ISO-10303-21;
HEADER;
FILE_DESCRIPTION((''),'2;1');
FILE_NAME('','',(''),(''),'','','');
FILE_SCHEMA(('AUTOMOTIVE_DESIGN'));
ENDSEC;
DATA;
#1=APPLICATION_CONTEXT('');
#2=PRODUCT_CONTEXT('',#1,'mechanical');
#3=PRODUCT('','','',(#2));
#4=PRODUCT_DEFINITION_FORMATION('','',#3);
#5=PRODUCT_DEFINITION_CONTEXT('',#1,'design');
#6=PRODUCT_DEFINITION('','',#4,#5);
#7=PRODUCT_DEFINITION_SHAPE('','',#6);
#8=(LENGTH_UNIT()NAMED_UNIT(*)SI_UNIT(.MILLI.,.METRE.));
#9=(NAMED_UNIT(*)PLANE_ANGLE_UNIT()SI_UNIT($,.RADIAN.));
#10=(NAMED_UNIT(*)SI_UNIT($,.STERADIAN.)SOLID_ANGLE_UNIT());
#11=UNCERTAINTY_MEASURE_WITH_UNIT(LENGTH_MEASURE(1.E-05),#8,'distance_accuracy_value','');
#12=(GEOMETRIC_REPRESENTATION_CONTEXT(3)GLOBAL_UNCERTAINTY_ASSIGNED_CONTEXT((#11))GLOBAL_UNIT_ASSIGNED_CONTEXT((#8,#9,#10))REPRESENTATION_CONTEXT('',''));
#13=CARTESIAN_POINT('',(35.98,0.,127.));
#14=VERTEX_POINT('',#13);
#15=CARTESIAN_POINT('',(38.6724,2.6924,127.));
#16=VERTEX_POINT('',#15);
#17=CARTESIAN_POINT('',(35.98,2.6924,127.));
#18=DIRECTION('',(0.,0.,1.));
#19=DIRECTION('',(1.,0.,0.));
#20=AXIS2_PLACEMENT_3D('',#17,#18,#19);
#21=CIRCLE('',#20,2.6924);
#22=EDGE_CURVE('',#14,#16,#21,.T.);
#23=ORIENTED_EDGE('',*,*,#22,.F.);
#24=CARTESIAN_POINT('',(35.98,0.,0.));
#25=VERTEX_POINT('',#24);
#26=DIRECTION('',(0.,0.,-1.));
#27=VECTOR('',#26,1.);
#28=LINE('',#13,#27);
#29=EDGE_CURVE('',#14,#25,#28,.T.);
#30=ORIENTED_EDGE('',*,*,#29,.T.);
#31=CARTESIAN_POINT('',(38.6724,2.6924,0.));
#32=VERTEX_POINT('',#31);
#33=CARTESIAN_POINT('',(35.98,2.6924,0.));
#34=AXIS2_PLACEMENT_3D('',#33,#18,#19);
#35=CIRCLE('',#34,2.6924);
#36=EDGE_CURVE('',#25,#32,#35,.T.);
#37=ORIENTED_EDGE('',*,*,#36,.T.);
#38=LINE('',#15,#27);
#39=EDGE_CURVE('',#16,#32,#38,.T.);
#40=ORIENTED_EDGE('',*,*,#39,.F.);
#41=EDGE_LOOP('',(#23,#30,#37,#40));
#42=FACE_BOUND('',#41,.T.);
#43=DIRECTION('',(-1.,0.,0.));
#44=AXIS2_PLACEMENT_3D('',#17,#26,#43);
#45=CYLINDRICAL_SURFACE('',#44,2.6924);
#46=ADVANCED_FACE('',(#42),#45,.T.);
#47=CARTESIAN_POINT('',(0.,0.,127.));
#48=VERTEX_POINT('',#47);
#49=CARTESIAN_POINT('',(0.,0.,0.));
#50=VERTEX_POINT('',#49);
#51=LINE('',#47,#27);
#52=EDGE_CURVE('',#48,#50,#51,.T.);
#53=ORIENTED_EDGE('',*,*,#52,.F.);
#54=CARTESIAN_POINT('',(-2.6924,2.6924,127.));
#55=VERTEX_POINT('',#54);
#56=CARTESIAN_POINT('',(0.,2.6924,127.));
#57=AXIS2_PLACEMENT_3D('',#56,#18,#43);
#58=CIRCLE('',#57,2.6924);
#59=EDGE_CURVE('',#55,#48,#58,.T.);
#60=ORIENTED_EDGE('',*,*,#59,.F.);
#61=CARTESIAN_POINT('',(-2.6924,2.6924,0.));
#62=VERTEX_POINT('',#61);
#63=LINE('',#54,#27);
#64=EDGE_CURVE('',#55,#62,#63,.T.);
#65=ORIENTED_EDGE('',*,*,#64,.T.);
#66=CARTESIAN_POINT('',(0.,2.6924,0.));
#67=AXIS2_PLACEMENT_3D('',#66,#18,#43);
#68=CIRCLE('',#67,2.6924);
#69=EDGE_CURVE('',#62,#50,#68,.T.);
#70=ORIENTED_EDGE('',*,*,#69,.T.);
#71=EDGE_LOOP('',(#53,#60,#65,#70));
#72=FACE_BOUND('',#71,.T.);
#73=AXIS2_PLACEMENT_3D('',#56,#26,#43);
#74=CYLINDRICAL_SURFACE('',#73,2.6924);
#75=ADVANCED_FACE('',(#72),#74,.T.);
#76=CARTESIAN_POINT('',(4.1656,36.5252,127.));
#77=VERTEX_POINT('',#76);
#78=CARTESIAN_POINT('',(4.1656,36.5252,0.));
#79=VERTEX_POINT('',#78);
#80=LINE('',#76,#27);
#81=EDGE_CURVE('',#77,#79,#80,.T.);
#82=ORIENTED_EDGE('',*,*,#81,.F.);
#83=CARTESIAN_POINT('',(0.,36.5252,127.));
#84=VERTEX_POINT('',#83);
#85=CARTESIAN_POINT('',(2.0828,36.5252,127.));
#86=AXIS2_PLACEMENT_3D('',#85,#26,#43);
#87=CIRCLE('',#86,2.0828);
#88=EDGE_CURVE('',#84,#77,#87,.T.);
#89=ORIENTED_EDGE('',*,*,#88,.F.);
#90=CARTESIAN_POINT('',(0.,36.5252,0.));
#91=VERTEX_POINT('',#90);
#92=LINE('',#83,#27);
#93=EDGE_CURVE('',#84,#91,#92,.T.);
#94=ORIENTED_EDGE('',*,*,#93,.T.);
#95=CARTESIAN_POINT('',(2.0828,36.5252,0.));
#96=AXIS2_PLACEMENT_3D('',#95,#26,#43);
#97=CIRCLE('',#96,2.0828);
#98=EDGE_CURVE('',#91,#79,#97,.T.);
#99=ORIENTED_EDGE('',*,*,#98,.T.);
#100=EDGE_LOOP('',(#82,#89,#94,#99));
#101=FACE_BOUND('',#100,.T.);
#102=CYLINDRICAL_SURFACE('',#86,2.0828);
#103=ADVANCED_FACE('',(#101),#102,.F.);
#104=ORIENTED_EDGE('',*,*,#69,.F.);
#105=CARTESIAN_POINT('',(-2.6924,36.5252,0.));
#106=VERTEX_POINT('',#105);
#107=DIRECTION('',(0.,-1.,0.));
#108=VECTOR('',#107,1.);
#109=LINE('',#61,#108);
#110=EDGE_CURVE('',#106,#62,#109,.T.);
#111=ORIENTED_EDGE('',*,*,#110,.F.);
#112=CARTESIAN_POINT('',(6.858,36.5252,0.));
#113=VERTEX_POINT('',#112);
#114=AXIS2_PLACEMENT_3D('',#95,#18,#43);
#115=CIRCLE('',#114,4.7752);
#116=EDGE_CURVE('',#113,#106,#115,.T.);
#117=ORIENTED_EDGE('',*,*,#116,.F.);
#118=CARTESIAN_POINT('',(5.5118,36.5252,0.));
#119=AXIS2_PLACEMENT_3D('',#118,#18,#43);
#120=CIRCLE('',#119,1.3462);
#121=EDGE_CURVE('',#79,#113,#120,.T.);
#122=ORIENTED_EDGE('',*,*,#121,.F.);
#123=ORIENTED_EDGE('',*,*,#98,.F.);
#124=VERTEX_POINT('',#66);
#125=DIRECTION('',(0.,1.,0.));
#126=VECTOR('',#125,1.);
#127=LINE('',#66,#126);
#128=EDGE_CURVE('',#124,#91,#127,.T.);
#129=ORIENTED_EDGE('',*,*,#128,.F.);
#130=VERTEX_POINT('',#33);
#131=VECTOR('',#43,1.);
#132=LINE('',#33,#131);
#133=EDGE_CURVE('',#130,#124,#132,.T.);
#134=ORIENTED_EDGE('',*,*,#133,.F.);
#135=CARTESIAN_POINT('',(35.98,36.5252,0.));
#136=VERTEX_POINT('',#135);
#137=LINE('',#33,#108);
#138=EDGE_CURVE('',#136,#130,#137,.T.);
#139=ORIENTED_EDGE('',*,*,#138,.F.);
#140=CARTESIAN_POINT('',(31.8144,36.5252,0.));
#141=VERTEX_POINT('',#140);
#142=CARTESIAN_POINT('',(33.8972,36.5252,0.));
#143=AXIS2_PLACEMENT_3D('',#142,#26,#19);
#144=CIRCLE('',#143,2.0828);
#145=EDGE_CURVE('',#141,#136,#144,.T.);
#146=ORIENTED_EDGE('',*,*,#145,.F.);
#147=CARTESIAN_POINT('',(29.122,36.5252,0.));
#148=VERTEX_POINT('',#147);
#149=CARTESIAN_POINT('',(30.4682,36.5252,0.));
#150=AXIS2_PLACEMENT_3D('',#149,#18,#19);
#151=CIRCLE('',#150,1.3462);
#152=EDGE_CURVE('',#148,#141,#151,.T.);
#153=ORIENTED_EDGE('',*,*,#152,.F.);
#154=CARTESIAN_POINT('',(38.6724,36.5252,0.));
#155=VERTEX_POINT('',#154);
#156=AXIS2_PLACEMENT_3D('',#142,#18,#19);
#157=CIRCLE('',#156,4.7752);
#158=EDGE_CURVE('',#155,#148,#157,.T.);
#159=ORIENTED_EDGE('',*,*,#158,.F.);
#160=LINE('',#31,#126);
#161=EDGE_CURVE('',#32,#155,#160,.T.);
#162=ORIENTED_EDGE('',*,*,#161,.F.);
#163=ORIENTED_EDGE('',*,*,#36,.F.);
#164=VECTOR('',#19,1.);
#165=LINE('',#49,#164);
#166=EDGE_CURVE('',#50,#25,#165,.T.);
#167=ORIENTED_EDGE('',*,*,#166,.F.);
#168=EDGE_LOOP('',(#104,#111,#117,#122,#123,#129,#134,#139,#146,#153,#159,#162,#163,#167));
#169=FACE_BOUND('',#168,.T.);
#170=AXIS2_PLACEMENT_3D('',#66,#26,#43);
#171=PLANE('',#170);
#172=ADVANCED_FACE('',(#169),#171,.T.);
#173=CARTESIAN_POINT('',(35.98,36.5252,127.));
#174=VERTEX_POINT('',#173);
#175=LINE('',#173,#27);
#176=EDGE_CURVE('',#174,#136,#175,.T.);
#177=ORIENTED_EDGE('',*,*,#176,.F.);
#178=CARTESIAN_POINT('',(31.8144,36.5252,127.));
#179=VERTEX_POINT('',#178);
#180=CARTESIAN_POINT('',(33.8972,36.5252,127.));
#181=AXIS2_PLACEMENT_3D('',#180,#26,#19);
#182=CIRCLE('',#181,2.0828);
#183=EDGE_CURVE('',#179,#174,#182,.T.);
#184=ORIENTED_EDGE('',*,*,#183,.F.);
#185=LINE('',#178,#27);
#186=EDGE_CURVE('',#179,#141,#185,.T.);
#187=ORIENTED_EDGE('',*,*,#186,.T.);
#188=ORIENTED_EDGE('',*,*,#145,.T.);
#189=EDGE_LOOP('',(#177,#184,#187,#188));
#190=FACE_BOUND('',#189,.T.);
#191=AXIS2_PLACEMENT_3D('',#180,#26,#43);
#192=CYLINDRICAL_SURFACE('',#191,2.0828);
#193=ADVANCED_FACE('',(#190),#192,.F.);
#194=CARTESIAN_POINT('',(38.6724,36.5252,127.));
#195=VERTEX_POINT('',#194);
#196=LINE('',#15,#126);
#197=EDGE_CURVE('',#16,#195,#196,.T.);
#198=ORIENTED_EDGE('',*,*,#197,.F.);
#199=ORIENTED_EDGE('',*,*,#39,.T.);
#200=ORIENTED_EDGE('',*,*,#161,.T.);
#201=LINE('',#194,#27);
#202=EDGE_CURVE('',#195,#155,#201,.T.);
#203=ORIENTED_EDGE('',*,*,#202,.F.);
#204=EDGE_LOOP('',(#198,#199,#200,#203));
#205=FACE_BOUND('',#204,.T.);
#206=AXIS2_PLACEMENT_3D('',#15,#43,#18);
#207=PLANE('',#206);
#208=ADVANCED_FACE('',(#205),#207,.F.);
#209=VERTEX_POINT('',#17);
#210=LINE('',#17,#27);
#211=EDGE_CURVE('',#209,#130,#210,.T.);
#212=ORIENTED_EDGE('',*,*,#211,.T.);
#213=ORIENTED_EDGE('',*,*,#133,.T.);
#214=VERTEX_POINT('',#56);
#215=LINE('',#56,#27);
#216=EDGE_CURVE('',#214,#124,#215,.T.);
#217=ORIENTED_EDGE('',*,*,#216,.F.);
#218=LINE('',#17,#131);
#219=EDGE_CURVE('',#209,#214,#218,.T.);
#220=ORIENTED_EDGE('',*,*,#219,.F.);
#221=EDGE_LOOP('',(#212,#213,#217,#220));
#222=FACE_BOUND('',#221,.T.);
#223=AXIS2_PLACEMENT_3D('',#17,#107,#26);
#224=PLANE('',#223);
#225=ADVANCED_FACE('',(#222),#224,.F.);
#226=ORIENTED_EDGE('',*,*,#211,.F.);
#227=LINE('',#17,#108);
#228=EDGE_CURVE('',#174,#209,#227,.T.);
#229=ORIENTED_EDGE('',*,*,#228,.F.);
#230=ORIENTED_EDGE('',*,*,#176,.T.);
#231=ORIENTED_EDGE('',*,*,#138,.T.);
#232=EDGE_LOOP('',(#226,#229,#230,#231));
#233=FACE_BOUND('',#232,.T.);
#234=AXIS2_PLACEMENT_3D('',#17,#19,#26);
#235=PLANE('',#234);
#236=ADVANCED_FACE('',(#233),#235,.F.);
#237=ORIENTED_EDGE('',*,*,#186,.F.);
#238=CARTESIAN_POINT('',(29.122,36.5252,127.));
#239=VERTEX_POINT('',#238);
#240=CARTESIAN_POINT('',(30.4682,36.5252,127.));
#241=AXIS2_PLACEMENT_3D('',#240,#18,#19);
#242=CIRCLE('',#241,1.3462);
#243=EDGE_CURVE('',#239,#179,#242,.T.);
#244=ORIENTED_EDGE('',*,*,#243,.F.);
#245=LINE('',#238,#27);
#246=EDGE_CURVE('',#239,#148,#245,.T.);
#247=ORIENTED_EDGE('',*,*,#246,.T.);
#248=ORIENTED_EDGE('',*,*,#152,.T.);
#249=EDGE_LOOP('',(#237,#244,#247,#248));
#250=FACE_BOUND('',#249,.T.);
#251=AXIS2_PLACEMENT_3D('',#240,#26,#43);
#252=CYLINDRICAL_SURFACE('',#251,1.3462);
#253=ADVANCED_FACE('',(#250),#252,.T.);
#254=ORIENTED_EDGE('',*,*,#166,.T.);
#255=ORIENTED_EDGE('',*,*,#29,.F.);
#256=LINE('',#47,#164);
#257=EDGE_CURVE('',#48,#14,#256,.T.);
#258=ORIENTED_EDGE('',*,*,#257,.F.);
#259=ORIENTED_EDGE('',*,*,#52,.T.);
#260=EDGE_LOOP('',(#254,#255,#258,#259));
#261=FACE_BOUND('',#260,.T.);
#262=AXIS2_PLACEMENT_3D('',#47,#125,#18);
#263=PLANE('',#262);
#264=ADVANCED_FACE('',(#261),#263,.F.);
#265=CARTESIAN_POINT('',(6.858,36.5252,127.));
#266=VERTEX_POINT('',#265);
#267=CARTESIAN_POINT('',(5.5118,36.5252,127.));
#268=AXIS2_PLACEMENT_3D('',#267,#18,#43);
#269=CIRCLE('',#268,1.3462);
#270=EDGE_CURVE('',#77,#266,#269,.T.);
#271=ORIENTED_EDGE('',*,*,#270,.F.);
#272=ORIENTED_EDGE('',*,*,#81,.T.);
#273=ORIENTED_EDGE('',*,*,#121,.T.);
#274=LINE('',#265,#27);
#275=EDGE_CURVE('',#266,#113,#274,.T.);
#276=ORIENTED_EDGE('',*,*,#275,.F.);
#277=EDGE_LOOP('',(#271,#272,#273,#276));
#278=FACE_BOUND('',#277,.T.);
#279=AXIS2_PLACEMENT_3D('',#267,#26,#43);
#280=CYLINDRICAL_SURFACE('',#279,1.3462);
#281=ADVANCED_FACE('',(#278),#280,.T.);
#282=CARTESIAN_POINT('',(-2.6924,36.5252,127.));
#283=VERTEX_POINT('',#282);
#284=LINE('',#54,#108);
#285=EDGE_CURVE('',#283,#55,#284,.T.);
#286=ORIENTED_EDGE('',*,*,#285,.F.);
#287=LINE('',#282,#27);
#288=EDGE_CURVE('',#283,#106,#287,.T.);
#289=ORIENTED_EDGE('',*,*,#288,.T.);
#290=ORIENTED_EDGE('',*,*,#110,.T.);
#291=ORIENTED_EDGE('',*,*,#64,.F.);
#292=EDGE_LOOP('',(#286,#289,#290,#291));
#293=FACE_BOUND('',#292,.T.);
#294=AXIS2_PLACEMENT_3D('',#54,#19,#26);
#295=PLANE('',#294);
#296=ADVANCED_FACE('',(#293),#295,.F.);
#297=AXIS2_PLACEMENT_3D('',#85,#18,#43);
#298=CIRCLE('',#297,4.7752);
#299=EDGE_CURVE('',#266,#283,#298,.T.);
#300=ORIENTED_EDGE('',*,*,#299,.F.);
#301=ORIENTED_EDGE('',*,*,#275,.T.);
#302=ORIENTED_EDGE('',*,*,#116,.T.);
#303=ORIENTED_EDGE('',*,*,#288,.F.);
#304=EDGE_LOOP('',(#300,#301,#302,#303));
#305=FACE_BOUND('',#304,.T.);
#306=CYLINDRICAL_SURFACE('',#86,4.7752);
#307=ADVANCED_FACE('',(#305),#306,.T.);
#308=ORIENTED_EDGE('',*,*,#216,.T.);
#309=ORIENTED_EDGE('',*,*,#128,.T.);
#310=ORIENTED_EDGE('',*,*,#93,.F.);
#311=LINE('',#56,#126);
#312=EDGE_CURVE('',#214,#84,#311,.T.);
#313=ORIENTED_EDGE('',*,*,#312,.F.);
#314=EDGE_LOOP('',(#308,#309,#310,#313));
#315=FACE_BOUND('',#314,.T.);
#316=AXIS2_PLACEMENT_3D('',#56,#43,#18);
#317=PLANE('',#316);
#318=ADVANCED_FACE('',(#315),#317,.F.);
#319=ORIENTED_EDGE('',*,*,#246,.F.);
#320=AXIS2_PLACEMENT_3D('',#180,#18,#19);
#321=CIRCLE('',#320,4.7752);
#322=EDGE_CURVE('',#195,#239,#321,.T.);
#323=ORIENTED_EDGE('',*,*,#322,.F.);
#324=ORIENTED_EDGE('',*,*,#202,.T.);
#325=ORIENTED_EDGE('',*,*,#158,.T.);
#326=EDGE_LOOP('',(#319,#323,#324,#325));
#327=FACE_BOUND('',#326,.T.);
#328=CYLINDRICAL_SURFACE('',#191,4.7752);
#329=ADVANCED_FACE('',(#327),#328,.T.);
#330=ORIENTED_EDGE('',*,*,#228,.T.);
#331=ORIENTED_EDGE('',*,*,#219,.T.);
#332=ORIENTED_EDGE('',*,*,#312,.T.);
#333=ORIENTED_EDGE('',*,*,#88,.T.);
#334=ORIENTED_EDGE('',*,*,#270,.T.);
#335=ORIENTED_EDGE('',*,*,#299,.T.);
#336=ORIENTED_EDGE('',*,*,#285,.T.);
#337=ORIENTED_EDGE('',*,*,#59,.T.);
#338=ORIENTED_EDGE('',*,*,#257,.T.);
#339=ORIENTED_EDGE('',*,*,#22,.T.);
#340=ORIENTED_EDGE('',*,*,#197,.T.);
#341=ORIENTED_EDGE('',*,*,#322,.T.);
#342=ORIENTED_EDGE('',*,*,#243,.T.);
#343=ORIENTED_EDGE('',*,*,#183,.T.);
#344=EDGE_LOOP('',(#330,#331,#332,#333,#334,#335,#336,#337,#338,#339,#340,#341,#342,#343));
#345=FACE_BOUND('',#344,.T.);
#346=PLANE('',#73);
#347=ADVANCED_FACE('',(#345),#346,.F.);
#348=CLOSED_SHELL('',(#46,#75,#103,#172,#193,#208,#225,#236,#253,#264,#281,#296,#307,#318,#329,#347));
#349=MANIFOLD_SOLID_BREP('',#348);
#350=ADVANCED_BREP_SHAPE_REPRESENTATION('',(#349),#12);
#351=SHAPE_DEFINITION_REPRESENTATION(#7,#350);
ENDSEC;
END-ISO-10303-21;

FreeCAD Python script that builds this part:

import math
import FreeCAD as App
import Part
import Sketcher
from FreeCAD import Vector
Q = App.Units.Quantity

doc = App.newDocument("Part")
body = doc.addObject("PartDesign::Body", "Body")

# Sketch on XY plane
sketch1 = doc.addObject("Sketcher::SketchObject", "Sketch")
body.addObject(sketch1)
sketch1.AttachmentSupport = (doc.XY_Plane, [""])
sketch1.MapMode = "FlatFace"
sketch1.addGeometry(Part.LineSegment(Vector(0, 0, 0), Vector(36, 0, 0)), False)
sketch1.addGeometry(Part.ArcOfCircle(Part.Circle(Vector(36, 2.7, 0), Vector(0, 0, 1), 2.7), math.radians(-90), math.radians(0)), False)
sketch1.addGeometry(Part.LineSegment(Vector(38.7, 2.7, 0), Vector(38.7, 36.5, 0)), False)
sketch1.addGeometry(Part.ArcOfCircle(Part.Circle(Vector(33.9, 36.5, 0), Vector(0, 0, 1), 4.8), math.radians(0), math.radians(180)), False)
sketch1.addGeometry(Part.ArcOfCircle(Part.Circle(Vector(30.5, 36.5, 0), Vector(0, 0, 1), 1.3), math.radians(180), math.radians(360)), False)
sketch1.addGeometry(Part.ArcOfCircle(Part.Circle(Vector(33.9, 36.5, 0), Vector(0, 0, 1), 2.1), math.radians(0), math.radians(180)), False)
sketch1.addGeometry(Part.LineSegment(Vector(36, 36.5, 0), Vector(36, 2.7, 0)), False)
sketch1.addGeometry(Part.LineSegment(Vector(36, 2.7, 0), Vector(0, 2.7, 0)), False)
sketch1.addGeometry(Part.LineSegment(Vector(0, 2.7, 0), Vector(0, 36.5, 0)), False)
sketch1.addGeometry(Part.ArcOfCircle(Part.Circle(Vector(2.1, 36.5, 0), Vector(0, 0, 1), 2.1), math.radians(0), math.radians(180)), False)
sketch1.addGeometry(Part.ArcOfCircle(Part.Circle(Vector(5.5, 36.5, 0), Vector(0, 0, 1), 1.3), math.radians(180), math.radians(360)), False)
sketch1.addGeometry(Part.ArcOfCircle(Part.Circle(Vector(2.1, 36.5, 0), Vector(0, 0, 1), 4.8), math.radians(0), math.radians(180)), False)
sketch1.addGeometry(Part.LineSegment(Vector(-2.7, 36.5, 0), Vector(-2.7, 2.7, 0)), False)
sketch1.addGeometry(Part.ArcOfCircle(Part.Circle(Vector(0, 2.7, 0), Vector(0, 0, 1), 2.7), math.radians(180), math.radians(270)), False)
sketch1.addConstraint(Sketcher.Constraint("Tangent", 0, 2, 1, 1))
sketch1.addConstraint(Sketcher.Constraint("Tangent", 1, 2, 2, 1))
sketch1.addConstraint(Sketcher.Constraint("Tangent", 2, 2, 3, 1))
sketch1.addConstraint(Sketcher.Constraint("Tangent", 3, 2, 4, 1))
sketch1.addConstraint(Sketcher.Constraint("Tangent", 4, 2, 5, 2))
sketch1.addConstraint(Sketcher.Constraint("Tangent", 5, 1, 6, 1))
sketch1.addConstraint(Sketcher.Constraint("Coincident", 6, 2, 7, 1))
sketch1.addConstraint(Sketcher.Constraint("Coincident", 7, 2, 8, 1))
sketch1.addConstraint(Sketcher.Constraint("Tangent", 8, 2, 9, 2))
sketch1.addConstraint(Sketcher.Constraint("Tangent", 9, 1, 10, 1))
sketch1.addConstraint(Sketcher.Constraint("Tangent", 10, 2, 11, 1))
sketch1.addConstraint(Sketcher.Constraint("Tangent", 11, 2, 12, 1))
sketch1.addConstraint(Sketcher.Constraint("Tangent", 12, 2, 13, 1))
sketch1.addConstraint(Sketcher.Constraint("Tangent", 13, 2, 0, 1))
sketch1.addConstraint(Sketcher.Constraint("Horizontal", 0))
sketch1.addConstraint(Sketcher.Constraint("Vertical", 2))
sketch1.addConstraint(Sketcher.Constraint("Vertical", 6))
sketch1.addConstraint(Sketcher.Constraint("Horizontal", 7))
sketch1.addConstraint(Sketcher.Constraint("Vertical", 8))
sketch1.addConstraint(Sketcher.Constraint("Vertical", 12))
sketch1.addConstraint(Sketcher.Constraint("Coincident", 13, 2, -1, 1))
sketch1.addConstraint(Sketcher.Constraint("Coincident", 5, 3, 3, 3))
sketch1.addConstraint(Sketcher.Constraint("Coincident", 11, 3, 9, 3))
sketch1.addConstraint(Sketcher.Constraint("Coincident", 6, 2, 1, 3))
sketch1.addConstraint(Sketcher.Constraint("Coincident", 7, 2, 13, 3))
sketch1.addConstraint(Sketcher.Constraint("Equal", 5, 9))
sketch1.addConstraint(Sketcher.Constraint("Horizontal", 3, 3, 4, 3))
sketch1.addConstraint(Sketcher.Constraint("Horizontal", 5, 3, 9, 3))
sketch1.addConstraint(Sketcher.Constraint("Horizontal", 9, 3, 10, 3))
sketch1.addConstraint(Sketcher.Constraint("Radius", 1, Q("0.106 in")))
sketch1.addConstraint(Sketcher.Constraint("Radius", 3, Q("0.188 in")))
sketch1.addConstraint(Sketcher.Constraint("DistanceY", 2, 1, 2, 2, Q("1.332 in")))
sketch1.addConstraint(Sketcher.Constraint("DistanceX", 0, 1, 0, 2, 35.98))
pad1 = doc.addObject("PartDesign::Pad", "Pad")
body.addObject(pad1)
pad1.Profile = sketch1
pad1.Length = Q("5 in")

doc.recompute()
